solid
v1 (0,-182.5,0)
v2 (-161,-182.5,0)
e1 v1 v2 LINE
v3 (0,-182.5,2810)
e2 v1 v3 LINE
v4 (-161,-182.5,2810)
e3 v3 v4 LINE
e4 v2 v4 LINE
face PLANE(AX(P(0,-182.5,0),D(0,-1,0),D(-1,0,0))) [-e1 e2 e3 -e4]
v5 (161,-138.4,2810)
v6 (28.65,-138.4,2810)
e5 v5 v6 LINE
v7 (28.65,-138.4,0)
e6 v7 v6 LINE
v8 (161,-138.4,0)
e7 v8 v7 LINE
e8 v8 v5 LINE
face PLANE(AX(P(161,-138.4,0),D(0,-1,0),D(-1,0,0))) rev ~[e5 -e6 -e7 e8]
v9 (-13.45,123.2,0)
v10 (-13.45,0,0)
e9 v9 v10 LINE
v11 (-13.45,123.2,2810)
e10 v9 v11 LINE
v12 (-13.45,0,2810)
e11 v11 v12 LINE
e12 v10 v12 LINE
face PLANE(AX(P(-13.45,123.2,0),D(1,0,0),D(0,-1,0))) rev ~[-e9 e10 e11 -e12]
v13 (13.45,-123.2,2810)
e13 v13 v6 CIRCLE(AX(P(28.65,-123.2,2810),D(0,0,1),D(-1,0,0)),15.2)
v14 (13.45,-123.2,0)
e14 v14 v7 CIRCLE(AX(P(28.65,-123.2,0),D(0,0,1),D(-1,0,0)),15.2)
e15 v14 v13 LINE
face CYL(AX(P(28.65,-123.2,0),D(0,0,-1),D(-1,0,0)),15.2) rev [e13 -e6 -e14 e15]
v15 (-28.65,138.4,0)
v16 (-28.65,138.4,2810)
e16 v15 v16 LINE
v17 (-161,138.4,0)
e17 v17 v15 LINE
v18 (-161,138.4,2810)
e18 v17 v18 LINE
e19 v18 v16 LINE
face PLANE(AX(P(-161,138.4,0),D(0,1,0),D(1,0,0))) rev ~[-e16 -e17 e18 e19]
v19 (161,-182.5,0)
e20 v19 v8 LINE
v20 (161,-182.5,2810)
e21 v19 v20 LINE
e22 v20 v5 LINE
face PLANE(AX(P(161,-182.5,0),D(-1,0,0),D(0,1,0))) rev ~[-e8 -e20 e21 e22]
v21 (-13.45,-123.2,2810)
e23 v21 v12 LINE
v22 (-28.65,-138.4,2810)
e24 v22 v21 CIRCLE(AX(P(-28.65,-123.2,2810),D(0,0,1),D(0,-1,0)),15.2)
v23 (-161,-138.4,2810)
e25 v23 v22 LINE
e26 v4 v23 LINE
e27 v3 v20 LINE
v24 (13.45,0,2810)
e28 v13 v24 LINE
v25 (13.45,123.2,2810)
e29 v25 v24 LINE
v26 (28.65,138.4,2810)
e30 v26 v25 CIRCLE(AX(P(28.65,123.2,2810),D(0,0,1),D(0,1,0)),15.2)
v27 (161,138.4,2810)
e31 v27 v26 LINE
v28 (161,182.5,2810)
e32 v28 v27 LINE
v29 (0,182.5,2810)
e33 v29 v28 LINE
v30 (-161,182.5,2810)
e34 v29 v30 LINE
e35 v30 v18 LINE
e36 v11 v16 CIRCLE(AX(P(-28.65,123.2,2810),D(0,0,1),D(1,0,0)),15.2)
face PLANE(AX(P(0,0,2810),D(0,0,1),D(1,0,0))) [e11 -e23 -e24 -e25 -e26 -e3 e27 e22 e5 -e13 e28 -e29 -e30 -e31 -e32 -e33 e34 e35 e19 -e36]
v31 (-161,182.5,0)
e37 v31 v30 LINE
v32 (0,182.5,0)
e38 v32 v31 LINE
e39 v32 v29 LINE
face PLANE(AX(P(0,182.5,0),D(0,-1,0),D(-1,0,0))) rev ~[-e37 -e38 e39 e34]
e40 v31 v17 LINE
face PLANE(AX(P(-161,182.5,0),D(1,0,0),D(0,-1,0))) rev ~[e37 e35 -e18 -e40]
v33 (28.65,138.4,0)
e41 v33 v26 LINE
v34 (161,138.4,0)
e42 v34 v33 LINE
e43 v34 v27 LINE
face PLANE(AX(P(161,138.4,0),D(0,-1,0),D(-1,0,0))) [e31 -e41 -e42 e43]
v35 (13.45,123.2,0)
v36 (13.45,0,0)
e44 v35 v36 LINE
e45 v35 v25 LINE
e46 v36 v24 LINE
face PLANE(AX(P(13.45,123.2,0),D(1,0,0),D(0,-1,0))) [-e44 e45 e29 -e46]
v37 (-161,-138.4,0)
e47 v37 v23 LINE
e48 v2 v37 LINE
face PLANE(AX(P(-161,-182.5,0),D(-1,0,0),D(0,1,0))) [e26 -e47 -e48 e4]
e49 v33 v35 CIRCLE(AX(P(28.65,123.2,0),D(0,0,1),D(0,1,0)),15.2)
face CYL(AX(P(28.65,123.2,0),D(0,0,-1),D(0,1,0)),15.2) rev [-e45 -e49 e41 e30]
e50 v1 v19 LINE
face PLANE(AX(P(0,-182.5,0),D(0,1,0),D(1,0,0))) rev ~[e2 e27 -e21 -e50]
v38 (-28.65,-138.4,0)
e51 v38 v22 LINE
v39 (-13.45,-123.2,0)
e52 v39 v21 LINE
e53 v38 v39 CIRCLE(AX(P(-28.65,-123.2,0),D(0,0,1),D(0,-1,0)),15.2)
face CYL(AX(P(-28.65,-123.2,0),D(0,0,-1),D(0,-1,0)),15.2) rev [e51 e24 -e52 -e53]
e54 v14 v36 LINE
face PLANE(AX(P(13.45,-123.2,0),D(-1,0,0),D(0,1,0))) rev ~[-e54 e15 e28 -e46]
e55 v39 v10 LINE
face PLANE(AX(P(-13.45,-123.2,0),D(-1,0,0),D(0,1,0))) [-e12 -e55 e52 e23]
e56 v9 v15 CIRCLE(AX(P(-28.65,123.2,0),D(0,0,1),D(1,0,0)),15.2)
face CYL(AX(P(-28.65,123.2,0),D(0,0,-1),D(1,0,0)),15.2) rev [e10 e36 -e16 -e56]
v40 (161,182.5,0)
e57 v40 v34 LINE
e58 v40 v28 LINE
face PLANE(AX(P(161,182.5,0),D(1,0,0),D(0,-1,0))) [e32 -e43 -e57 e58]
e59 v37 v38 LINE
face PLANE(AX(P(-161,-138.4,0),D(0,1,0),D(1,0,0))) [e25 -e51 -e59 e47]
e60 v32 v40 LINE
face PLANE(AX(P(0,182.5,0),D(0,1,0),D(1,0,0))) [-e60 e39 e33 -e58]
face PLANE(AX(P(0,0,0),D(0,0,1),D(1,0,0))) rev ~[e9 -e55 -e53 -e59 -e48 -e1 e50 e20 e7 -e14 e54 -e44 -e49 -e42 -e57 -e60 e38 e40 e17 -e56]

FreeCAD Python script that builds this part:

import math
import FreeCAD as App
import Part
import Sketcher

V = App.Vector

doc = App.newDocument("Part")
body = doc.addObject("PartDesign::Body", "Body")

# Sketch on XY plane
sketch1 = body.newObject("Sketcher::SketchObject", "Sketch")
sketch1.AttachmentSupport = (doc.getObject("XY_Plane"), [""])
sketch1.MapMode = "FlatFace"
sketch1.addGeometry([
    Part.LineSegment(V(-161, -138.4, 0), V(-161, -182.5, 0)),  # 0
    Part.LineSegment(V(-161, -182.5, 0), V(161, -182.5, 0)),  # 1
    Part.LineSegment(V(161, -182.5, 0), V(161, -138.4, 0)),  # 2
    Part.LineSegment(V(161, -138.4, 0), V(28.65, -138.4, 0)),  # 3
    Part.ArcOfCircle(Part.Circle(V(28.65, -123.2, 0), V(0, 0, 1), 15.2), math.radians(180), math.radians(270)),  # 4
    Part.LineSegment(V(13.45, -123.2, 0), V(13.45, 123.2, 0)),  # 5
    Part.ArcOfCircle(Part.Circle(V(28.65, 123.2, 0), V(0, 0, 1), 15.2), math.radians(90), math.radians(180)),  # 6
    Part.LineSegment(V(28.65, 138.4, 0), V(161, 138.4, 0)),  # 7
    Part.LineSegment(V(161, 138.4, 0), V(161, 182.5, 0)),  # 8
    Part.LineSegment(V(161, 182.5, 0), V(-161, 182.5, 0)),  # 9
    Part.LineSegment(V(-161, 182.5, 0), V(-161, 138.4, 0)),  # 10
    Part.LineSegment(V(-161, 138.4, 0), V(-28.65, 138.4, 0)),  # 11
    Part.ArcOfCircle(Part.Circle(V(-28.65, 123.2, 0), V(0, 0, 1), 15.2), math.radians(0), math.radians(90)),  # 12
    Part.LineSegment(V(-13.45, 123.2, 0), V(-13.45, -123.2, 0)),  # 13
    Part.ArcOfCircle(Part.Circle(V(-28.65, -123.2, 0), V(0, 0, 1), 15.2), math.radians(-90), math.radians(0)),  # 14
    Part.LineSegment(V(-28.65, -138.4, 0), V(-161, -138.4, 0)),  # 15
], False)
sketch1.addConstraint([
    Sketcher.Constraint("Coincident", 0, 2, 1, 1),
    Sketcher.Constraint("Coincident", 1, 2, 2, 1),
    Sketcher.Constraint("Coincident", 2, 2, 3, 1),
    Sketcher.Constraint("Tangent", 3, 2, 4, 2),
    Sketcher.Constraint("Tangent", 4, 1, 5, 1),
    Sketcher.Constraint("Tangent", 5, 2, 6, 2),
    Sketcher.Constraint("Tangent", 6, 1, 7, 1),
    Sketcher.Constraint("Coincident", 7, 2, 8, 1),
    Sketcher.Constraint("Coincident", 8, 2, 9, 1),
    Sketcher.Constraint("Coincident", 9, 2, 10, 1),
    Sketcher.Constraint("Coincident", 10, 2, 11, 1),
    Sketcher.Constraint("Tangent", 11, 2, 12, 2),
    Sketcher.Constraint("Tangent", 12, 1, 13, 1),
    Sketcher.Constraint("Tangent", 13, 2, 14, 2),
    Sketcher.Constraint("Tangent", 14, 1, 15, 1),
    Sketcher.Constraint("Coincident", 15, 2, 0, 1),
    Sketcher.Constraint("Vertical", 0),
    Sketcher.Constraint("Horizontal", 1),
    Sketcher.Constraint("Vertical", 2),
    Sketcher.Constraint("Horizontal", 3),
    Sketcher.Constraint("Vertical", 5),
    Sketcher.Constraint("Horizontal", 7),
    Sketcher.Constraint("Vertical", 8),
    Sketcher.Constraint("Horizontal", 9),
    Sketcher.Constraint("Vertical", 10),
    Sketcher.Constraint("Horizontal", 11),
    Sketcher.Constraint("Vertical", 13),
    Sketcher.Constraint("Horizontal", 15),
    Sketcher.Constraint("Equal", 4, 6),
    Sketcher.Constraint("Equal", 6, 12),
    Sketcher.Constraint("Equal", 12, 14),
    Sketcher.Constraint("Symmetric", 4, 3, 12, 3, -1, 1),
    Sketcher.Constraint("Symmetric", 0, 2, 8, 2, -1, 1),
    Sketcher.Constraint("Symmetric", 7, 2, 10, 2, -2),
    Sketcher.Constraint("Symmetric", 2, 2, 15, 2, -2),
    Sketcher.Constraint("Radius", 4, 15.2),
    Sketcher.Constraint("DistanceY", 0, 2, 0, 1, 44.1),
    Sketcher.Constraint("DistanceX", 0, 2, -1, 1, 161.0),
    Sketcher.Constraint("DistanceY", 0, 2, -1, 1, 182.5),
    Sketcher.Constraint("DistanceX", -1, 1, 4, 1, 13.45),
])
pad1 = body.newObject("PartDesign::Pad", "Pad")
pad1.Profile = sketch1
pad1.Length = 2810

doc.recompute()
